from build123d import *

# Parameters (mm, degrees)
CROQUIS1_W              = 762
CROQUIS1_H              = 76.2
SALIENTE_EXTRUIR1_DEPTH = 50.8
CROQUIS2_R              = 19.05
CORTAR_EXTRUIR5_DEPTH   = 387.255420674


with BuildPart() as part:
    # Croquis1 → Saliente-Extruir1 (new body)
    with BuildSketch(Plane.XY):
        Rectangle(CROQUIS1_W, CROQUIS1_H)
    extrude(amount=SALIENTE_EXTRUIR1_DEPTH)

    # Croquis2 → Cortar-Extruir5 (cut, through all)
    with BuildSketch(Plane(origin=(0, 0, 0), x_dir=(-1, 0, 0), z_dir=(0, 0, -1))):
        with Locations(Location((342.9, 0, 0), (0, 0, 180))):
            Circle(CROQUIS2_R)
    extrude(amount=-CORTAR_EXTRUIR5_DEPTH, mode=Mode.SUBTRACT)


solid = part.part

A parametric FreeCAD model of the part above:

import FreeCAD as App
import Part
import Sketcher
from FreeCAD import Vector
Q = App.Units.Quantity


def add_polygon(sketch, points):
    """Adds a closed chain of lines whose ends are joined by coincident constraints."""
    first, n = sketch.GeometryCount, len(points)
    for a, b in zip(points, points[1:] + points[:1]):
        sketch.addGeometry(Part.LineSegment(App.Vector(*a, 0), App.Vector(*b, 0)), False)
    for i in range(n):
        sketch.addConstraint(Sketcher.Constraint("Coincident", first + i, 2, first + (i + 1) % n, 1))

doc = App.newDocument("Part")
body = doc.addObject("PartDesign::Body", "Body")

# Sketch on XY plane
sketch1 = body.newObject("Sketcher::SketchObject", "Sketch")
sketch1.AttachmentSupport = (doc.getObject("XY_Plane"), [""])
sketch1.MapMode = "FlatFace"
add_polygon(sketch1, [(-381, 38), (-381, -38), (381, -38), (381, 38)])  # lines 0-3
sketch1.addConstraint(Sketcher.Constraint("Vertical", 0))
sketch1.addConstraint(Sketcher.Constraint("Horizontal", 1))
sketch1.addConstraint(Sketcher.Constraint("Vertical", 2))
sketch1.addConstraint(Sketcher.Constraint("Horizontal", 3))
sketch1.addConstraint(Sketcher.Constraint("Symmetric", 0, 2, 2, 2, -1, 1))
sketch1.addConstraint(Sketcher.Constraint("DistanceX", 1, 1, 1, 2, Q("30 in")))
sketch1.addConstraint(Sketcher.Constraint("DistanceY", 0, 2, 0, 1, Q("3 in")))
pad1 = body.newObject("PartDesign::Pad", "Pad")
pad1.Profile = sketch1
pad1.Length = Q("2 in")

# Sketch on XY plane
sketch2 = body.newObject("Sketcher::SketchObject", "Sketch001")
sketch2.AttachmentSupport = (doc.getObject("XY_Plane"), [""])
sketch2.MapMode = "FlatFace"
sketch2.addGeometry(Part.Circle(Vector(-343, 0, 0), Vector(0, 0, 1), 19), False)
sketch2.addConstraint(Sketcher.Constraint("PointOnObject", 0, 3, -1))
sketch2.addConstraint(Sketcher.Constraint("Diameter", 0, Q("1.5 in")))
sketch2.addConstraint(Sketcher.Constraint("DistanceX", 0, 3, -1, 1, Q("13.5 in")))
pocket1 = body.newObject("PartDesign::Pocket", "Pocket")
pocket1.Profile = sketch2
pocket1.Type = "ThroughAll"
pocket1.Reversed = True

doc.recompute()
